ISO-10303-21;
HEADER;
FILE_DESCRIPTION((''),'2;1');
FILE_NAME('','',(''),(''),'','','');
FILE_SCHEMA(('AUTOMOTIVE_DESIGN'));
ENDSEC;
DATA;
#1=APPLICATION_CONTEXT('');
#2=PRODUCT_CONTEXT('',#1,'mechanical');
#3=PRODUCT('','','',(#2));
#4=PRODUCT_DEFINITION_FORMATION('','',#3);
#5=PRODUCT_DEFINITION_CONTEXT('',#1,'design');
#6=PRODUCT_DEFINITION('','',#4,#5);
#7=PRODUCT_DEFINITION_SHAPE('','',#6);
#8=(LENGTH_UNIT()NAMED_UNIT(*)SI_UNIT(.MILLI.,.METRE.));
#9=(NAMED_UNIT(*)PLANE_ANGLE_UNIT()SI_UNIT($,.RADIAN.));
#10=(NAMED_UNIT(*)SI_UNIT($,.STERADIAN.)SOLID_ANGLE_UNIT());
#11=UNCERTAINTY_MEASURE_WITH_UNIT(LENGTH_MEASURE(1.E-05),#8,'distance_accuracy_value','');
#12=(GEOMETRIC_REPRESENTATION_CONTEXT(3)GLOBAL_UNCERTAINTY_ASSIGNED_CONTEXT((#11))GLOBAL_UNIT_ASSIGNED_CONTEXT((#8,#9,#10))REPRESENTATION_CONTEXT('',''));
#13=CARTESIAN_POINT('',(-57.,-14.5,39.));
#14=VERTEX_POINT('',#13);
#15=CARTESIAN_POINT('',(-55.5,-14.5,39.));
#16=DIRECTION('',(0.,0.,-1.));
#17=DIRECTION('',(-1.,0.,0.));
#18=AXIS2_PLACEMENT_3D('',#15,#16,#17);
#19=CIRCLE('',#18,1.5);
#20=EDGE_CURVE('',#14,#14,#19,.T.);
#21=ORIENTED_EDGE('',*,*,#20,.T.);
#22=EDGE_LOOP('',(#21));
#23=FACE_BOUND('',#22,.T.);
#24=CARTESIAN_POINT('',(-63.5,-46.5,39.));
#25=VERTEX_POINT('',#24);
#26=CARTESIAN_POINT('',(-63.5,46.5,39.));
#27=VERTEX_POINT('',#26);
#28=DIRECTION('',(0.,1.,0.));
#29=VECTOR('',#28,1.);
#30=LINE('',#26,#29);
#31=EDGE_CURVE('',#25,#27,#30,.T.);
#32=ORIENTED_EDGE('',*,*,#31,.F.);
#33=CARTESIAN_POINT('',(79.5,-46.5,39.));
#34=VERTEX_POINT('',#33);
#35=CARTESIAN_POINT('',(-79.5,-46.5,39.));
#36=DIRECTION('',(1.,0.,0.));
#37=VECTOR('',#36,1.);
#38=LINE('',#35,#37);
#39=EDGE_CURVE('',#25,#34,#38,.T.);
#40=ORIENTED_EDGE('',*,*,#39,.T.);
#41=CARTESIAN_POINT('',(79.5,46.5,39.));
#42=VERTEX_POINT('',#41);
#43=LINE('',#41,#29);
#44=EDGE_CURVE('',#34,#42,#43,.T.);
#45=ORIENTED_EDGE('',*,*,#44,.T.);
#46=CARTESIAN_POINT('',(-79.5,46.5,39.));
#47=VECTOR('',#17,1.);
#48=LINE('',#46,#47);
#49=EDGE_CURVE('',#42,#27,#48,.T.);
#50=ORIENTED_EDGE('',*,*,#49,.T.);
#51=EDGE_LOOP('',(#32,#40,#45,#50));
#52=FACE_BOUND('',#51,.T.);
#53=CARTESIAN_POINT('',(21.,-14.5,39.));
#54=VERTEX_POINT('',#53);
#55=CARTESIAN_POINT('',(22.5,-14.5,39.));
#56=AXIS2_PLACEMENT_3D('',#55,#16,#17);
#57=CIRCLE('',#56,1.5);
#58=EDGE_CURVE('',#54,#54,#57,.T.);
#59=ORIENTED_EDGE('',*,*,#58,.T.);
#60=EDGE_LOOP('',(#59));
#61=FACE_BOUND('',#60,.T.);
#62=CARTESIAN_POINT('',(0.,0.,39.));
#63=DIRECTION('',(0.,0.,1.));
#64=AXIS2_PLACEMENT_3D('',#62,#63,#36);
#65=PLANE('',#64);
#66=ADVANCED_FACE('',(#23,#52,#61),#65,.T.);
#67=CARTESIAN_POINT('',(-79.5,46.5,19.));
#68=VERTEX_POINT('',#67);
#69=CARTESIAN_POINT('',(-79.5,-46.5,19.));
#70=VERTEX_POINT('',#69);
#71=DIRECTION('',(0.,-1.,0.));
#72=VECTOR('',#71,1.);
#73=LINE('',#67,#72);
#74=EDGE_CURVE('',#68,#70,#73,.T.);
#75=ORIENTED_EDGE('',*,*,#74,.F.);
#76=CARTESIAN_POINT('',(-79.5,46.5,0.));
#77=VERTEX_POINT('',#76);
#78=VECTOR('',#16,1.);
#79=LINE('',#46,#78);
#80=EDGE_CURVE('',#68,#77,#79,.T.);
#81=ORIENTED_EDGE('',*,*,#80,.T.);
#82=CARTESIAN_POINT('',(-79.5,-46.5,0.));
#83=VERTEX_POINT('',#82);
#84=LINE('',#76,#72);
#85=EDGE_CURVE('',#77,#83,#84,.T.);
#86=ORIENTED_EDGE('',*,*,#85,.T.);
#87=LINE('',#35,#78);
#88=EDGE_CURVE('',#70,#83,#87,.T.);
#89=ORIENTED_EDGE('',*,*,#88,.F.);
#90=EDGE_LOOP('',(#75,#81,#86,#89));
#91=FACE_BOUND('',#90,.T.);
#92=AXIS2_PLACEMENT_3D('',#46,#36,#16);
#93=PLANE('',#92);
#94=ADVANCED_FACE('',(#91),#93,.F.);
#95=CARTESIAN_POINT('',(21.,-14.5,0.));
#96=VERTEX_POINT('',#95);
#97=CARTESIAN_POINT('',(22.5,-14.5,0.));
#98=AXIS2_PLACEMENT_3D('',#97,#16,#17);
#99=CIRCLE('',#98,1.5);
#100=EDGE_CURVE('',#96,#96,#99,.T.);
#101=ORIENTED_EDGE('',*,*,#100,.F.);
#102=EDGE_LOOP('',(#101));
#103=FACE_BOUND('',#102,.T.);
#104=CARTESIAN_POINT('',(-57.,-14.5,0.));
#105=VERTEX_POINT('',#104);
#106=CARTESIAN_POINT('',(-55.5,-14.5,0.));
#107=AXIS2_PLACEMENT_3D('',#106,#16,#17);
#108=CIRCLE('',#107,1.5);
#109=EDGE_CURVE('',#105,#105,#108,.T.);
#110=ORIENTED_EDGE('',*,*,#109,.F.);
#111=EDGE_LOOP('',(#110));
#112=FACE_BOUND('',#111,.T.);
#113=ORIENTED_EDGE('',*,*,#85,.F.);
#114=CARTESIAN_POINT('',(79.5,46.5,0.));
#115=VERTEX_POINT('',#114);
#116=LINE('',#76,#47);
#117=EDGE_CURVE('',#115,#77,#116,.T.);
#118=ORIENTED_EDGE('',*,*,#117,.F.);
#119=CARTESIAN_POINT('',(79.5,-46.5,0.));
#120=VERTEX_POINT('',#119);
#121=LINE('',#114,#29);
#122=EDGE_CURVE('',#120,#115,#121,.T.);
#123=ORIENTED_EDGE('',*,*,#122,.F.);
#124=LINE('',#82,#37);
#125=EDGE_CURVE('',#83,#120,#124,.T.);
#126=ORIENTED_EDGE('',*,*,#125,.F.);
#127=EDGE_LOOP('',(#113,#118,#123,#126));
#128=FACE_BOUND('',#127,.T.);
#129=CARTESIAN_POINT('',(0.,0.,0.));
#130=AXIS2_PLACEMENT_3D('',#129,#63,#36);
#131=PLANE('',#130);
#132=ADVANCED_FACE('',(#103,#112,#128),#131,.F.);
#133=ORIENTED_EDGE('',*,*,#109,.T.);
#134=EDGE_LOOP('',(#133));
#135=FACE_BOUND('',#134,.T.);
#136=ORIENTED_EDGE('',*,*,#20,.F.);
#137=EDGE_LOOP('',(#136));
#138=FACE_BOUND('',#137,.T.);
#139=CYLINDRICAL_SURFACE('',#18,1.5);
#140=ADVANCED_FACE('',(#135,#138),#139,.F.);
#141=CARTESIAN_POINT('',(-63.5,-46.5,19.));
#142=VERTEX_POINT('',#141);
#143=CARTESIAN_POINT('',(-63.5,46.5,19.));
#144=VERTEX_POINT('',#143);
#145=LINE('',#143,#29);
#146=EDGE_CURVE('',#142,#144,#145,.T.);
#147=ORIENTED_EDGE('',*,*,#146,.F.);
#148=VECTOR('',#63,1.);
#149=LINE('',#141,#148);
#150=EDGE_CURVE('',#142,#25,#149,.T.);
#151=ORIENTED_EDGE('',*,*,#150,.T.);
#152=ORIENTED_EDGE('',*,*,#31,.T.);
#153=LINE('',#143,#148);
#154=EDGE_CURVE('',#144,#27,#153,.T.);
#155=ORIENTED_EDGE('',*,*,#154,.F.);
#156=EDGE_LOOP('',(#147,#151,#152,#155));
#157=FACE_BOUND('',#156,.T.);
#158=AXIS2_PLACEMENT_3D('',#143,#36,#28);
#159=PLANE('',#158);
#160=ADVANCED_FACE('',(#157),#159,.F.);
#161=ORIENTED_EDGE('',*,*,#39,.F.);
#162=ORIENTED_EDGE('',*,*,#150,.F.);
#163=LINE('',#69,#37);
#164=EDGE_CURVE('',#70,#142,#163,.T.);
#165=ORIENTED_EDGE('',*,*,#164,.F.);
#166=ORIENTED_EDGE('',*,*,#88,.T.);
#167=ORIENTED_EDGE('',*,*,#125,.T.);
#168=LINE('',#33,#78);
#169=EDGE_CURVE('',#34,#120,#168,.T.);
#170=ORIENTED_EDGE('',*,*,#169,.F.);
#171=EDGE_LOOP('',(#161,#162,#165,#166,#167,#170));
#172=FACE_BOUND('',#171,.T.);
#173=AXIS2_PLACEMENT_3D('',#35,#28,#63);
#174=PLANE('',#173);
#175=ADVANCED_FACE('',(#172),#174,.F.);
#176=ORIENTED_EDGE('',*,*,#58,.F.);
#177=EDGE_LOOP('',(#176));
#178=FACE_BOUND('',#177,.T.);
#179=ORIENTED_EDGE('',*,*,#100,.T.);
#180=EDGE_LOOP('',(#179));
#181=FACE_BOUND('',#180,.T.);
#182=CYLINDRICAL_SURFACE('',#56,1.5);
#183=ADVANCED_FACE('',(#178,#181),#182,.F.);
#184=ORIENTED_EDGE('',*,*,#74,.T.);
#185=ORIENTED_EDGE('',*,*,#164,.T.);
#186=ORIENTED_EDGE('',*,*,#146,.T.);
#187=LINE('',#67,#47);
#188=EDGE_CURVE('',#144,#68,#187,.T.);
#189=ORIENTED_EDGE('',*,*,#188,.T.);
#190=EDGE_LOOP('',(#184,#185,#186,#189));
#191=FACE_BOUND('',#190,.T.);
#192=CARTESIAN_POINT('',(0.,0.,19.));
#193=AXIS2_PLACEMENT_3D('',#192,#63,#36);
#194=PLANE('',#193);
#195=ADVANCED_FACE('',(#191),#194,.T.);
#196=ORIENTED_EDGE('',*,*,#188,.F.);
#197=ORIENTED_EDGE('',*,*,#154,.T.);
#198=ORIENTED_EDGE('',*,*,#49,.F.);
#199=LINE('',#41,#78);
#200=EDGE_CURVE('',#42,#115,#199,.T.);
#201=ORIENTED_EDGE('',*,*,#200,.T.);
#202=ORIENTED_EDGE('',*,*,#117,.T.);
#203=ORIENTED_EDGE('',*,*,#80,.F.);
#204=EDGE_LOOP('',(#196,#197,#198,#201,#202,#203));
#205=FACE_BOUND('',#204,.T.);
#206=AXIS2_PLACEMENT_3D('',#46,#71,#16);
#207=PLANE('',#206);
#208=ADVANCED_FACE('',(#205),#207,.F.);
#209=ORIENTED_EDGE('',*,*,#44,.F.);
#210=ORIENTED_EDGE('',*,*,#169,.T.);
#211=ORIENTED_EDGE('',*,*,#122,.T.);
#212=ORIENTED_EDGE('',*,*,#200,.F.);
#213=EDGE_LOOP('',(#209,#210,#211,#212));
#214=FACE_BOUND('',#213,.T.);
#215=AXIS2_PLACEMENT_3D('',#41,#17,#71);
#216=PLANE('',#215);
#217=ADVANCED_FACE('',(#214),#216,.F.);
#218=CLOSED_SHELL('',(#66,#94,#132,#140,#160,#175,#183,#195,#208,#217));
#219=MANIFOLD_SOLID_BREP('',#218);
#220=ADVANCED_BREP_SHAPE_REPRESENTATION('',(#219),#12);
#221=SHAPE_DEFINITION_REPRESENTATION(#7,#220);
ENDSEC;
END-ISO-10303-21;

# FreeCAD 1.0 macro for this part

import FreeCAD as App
import Part
import Sketcher

doc = App.newDocument("Part")
params = doc.addObject("Spreadsheet::Sheet", "Params")
for row, (alias, value) in enumerate([
    ("sketch1_width", "159 mm"),
    ("sketch1_height", "93 mm"),
    ("pad1_length", "39 mm"),
    ("sketch2_diameter", "3 mm"),
    ("pocket1_length", "39 mm"),
    ("sketch3_width", "16 mm"),
    ("sketch3_height", "93 mm"),
    ("pocket2_length", "20 mm"),
], start=1):
    params.set(f"A{row}", alias)
    params.set(f"B{row}", "=" + value)
    params.setAlias(f"B{row}", alias)

body = doc.addObject("PartDesign::Body", "Body")

# Sketch on XY plane
sketch1 = doc.addObject("Sketcher::SketchObject", "Sketch")
body.addObject(sketch1)
sketch1.AttachmentSupport = (doc.XY_Plane, [""])
sketch1.MapMode = "FlatFace"
sketch1.addGeometry(Part.LineSegment(App.Vector(-80, 46, 0), App.Vector(-80, -46, 0)), False)
sketch1.addGeometry(Part.LineSegment(App.Vector(-80, -46, 0), App.Vector(80, -46, 0)), False)
sketch1.addGeometry(Part.LineSegment(App.Vector(80, -46, 0), App.Vector(80, 46, 0)), False)
sketch1.addGeometry(Part.LineSegment(App.Vector(80, 46, 0), App.Vector(-80, 46, 0)), False)
sketch1.addConstraint(Sketcher.Constraint("Coincident", 0, 2, 1, 1))
sketch1.addConstraint(Sketcher.Constraint("Coincident", 1, 2, 2, 1))
sketch1.addConstraint(Sketcher.Constraint("Coincident", 2, 2, 3, 1))
sketch1.addConstraint(Sketcher.Constraint("Coincident", 3, 2, 0, 1))
sketch1.addConstraint(Sketcher.Constraint("Vertical", 0))
sketch1.addConstraint(Sketcher.Constraint("Horizontal", 1))
sketch1.addConstraint(Sketcher.Constraint("Vertical", 2))
sketch1.addConstraint(Sketcher.Constraint("Horizontal", 3))
sketch1.addConstraint(Sketcher.Constraint("Symmetric", 0, 2, 2, 2, -1, 1))
sketch1.addConstraint(Sketcher.Constraint("DistanceX", 1, 1, 1, 2, 159.0))
sketch1.addConstraint(Sketcher.Constraint("DistanceY", 0, 2, 0, 1, 93.0))
sketch1.setExpression("Constraints[9]", "Params.sketch1_width")
sketch1.setExpression("Constraints[10]", "Params.sketch1_height")
pad1 = doc.addObject("PartDesign::Pad", "Pad")
body.addObject(pad1)
pad1.Profile = sketch1
pad1.setExpression("Length", "Params.pad1_length")

# Sketch on XY plane
sketch2 = doc.addObject("Sketcher::SketchObject", "Sketch001")
body.addObject(sketch2)
sketch2.AttachmentSupport = (doc.XY_Plane, [""])
sketch2.MapMode = "FlatFace"
sketch2.addGeometry(Part.Circle(App.Vector(22.5, -14.5, 0), App.Vector(0, 0, 1), 1.5), False)
sketch2.addGeometry(Part.Circle(App.Vector(-55.5, -14.5, 0), App.Vector(0, 0, 1), 1.5), False)
sketch2.addConstraint(Sketcher.Constraint("Equal", 0, 1))
sketch2.addConstraint(Sketcher.Constraint("Horizontal", 0, 3, 1, 3))
sketch2.addConstraint(Sketcher.Constraint("Diameter", 0, 3.0))
sketch2.addConstraint(Sketcher.Constraint("DistanceX", 1, 3, 0, 3, 78.0))
sketch2.addConstraint(Sketcher.Constraint("DistanceX", -1, 1, 0, 3, 22.5))
sketch2.addConstraint(Sketcher.Constraint("DistanceY", 0, 3, -1, 1, 14.5))
sketch2.setExpression("Constraints[2]", "Params.sketch2_diameter")
pocket1 = doc.addObject("PartDesign::Pocket", "Pocket")
body.addObject(pocket1)
pocket1.Profile = sketch2
pocket1.setExpression("Length", "Params.pocket1_length")
pocket1.Reversed = True

# Sketch on XY plane
sketch3 = doc.addObject("Sketcher::SketchObject", "Sketch002")
body.addObject(sketch3)
sketch3.AttachmentSupport = (doc.XY_Plane, [""])
sketch3.MapMode = "FlatFace"
sketch3.AttachmentOffset = App.Placement(App.Vector(0, 0, 39), App.Rotation())
sketch3.addGeometry(Part.LineSegment(App.Vector(-80, 46, 0), App.Vector(-80, -46, 0)), False)
sketch3.addGeometry(Part.LineSegment(App.Vector(-80, -46, 0), App.Vector(-64, -46, 0)), False)
sketch3.addGeometry(Part.LineSegment(App.Vector(-64, -46, 0), App.Vector(-64, 46, 0)), False)
sketch3.addGeometry(Part.LineSegment(App.Vector(-64, 46, 0), App.Vector(-80, 46, 0)), False)
sketch3.addConstraint(Sketcher.Constraint("Coincident", 0, 2, 1, 1))
sketch3.addConstraint(Sketcher.Constraint("Coincident", 1, 2, 2, 1))
sketch3.addConstraint(Sketcher.Constraint("Coincident", 2, 2, 3, 1))
sketch3.addConstraint(Sketcher.Constraint("Coincident", 3, 2, 0, 1))
sketch3.addConstraint(Sketcher.Constraint("Vertical", 0))
sketch3.addConstraint(Sketcher.Constraint("Horizontal", 1))
sketch3.addConstraint(Sketcher.Constraint("Vertical", 2))
sketch3.addConstraint(Sketcher.Constraint("Horizontal", 3))
sketch3.addConstraint(Sketcher.Constraint("DistanceX", 1, 1, 1, 2, 16.0))
sketch3.addConstraint(Sketcher.Constraint("DistanceY", 0, 2, 0, 1, 93.0))
sketch3.addConstraint(Sketcher.Constraint("DistanceX", 0, 2, -1, 1, 79.5))
sketch3.addConstraint(Sketcher.Constraint("DistanceY", 0, 2, -1, 1, 46.5))
sketch3.setExpression("Constraints[8]", "Params.sketch3_width")
sketch3.setExpression("Constraints[9]", "Params.sketch3_height")
pocket2 = doc.addObject("PartDesign::Pocket", "Pocket001")
body.addObject(pocket2)
pocket2.Profile = sketch3
pocket2.setExpression("Length", "Params.pocket2_length")

doc.recompute()
